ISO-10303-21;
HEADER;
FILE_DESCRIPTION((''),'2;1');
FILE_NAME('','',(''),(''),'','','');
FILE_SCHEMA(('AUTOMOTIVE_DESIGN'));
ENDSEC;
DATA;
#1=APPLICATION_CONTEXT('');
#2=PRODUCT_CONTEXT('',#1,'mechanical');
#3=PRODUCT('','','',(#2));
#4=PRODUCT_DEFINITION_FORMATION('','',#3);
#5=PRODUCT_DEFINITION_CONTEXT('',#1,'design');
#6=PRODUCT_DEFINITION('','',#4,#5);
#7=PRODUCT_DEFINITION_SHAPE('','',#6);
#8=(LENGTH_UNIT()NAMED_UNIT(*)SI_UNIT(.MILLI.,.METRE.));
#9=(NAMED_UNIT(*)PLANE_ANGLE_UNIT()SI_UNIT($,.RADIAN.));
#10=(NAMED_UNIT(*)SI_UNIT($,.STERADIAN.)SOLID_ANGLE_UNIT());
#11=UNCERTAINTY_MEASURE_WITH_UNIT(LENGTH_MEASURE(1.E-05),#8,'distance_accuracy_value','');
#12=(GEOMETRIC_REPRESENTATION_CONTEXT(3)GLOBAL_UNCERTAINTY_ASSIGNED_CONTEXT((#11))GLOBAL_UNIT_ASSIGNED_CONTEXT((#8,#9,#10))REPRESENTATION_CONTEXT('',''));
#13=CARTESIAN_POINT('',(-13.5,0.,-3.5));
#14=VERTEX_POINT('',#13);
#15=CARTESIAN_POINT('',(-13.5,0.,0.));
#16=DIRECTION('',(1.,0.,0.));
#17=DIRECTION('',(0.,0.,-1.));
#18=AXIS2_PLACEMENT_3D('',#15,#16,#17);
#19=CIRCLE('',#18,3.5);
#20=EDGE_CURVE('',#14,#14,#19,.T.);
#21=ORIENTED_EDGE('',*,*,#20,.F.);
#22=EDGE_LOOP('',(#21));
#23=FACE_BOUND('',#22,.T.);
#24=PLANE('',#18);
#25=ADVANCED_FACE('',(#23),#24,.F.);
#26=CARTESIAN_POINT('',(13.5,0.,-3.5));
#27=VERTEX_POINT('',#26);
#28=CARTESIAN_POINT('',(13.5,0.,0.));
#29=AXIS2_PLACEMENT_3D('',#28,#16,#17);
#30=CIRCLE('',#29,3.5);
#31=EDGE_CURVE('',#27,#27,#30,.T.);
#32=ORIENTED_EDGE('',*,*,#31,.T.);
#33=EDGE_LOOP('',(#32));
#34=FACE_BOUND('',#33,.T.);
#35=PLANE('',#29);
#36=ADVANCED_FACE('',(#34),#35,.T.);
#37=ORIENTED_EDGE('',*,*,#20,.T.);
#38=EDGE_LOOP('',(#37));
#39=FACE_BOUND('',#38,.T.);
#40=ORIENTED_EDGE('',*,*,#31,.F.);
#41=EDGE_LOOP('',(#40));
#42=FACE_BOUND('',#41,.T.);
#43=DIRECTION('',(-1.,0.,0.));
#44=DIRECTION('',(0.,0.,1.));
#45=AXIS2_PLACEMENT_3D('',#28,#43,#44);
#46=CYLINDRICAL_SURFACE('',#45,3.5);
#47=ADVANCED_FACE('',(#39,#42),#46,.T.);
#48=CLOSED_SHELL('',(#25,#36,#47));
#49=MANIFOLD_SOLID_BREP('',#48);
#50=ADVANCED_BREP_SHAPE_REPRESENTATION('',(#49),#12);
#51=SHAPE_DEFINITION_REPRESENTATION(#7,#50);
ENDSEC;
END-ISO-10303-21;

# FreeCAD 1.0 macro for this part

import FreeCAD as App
import Part
import Sketcher

V = App.Vector
Q = App.Units.Quantity

doc = App.newDocument("Part")
body = doc.addObject("PartDesign::Body", "Body")

sketch1 = doc.addObject("Sketcher::SketchObject", "Sketch")
body.addObject(sketch1)
sketch1.AttachmentSupport = (doc.YZ_Plane, [""])
sketch1.MapMode = "FlatFace"
sketch1.addGeometry(Part.Circle(V(0, 0, 0), V(0, 0, 1), 3.5), False)
sketch1.addConstraint([
    Sketcher.Constraint("Coincident", 0, 3, -1, 1),
    Sketcher.Constraint("Diameter", 0, Q("7 mm")),
])
pad1 = doc.addObject("PartDesign::Pad", "Pad")
body.addObject(pad1)
pad1.Profile = sketch1
pad1.Length = 27
pad1.Midplane = True

doc.recompute()
